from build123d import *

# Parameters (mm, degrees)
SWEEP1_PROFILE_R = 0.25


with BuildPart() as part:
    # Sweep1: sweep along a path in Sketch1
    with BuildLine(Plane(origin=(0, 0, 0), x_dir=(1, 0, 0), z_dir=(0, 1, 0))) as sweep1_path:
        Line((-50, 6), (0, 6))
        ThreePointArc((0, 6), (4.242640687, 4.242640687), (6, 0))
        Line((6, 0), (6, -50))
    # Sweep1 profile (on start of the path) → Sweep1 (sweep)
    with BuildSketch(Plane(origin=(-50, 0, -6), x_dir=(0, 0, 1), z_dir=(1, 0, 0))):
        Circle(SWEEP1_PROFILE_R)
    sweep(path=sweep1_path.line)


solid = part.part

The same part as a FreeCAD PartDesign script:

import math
import FreeCAD as App
import Part
import Sketcher

V = App.Vector
Q = App.Units.Quantity

doc = App.newDocument("Part")
body = doc.addObject("PartDesign::Body", "Body")

# Sketch on YZ plane
sketch1 = doc.addObject("Sketcher::SketchObject", "Sketch")
body.addObject(sketch1)
sketch1.AttachmentSupport = (doc.YZ_Plane, [""])
sketch1.MapMode = "FlatFace"
sketch1.AttachmentOffset = App.Placement(V(0, 0, -50), App.Rotation())
sketch1.addGeometry(Part.Circle(V(0, -6, 0), V(0, 0, 1), 0.25), False)
sketch1.addConstraint(Sketcher.Constraint("PointOnObject", 0, 3, -2))
sketch1.addConstraint(Sketcher.Constraint("Diameter", 0, Q("0.5 mm")))
sketch1.addConstraint(Sketcher.Constraint("DistanceY", 0, 3, -1, 1, Q("6 mm")))

# Sketch on XZ plane
sketch2 = doc.addObject("Sketcher::SketchObject", "Sketch001")
body.addObject(sketch2)
sketch2.AttachmentSupport = (doc.XZ_Plane, [""])
sketch2.MapMode = "FlatFace"
sketch2.addGeometry(Part.LineSegment(V(-50, -6, 0), V(0, -6, 0)), False)
sketch2.addGeometry(Part.ArcOfCircle(Part.Circle(V(0, 0, 0), V(0, 0, 1), 6), math.radians(-90), math.radians(0)), False)
sketch2.addGeometry(Part.LineSegment(V(6, 0, 0), V(6, 50, 0)), False)
sketch2.addConstraint(Sketcher.Constraint("Tangent", 0, 2, 1, 1))
sketch2.addConstraint(Sketcher.Constraint("Tangent", 1, 2, 2, 1))
sketch2.addConstraint(Sketcher.Constraint("Horizontal", 0))
sketch2.addConstraint(Sketcher.Constraint("Vertical", 2))
sketch2.addConstraint(Sketcher.Constraint("Coincident", 1, 3, -1, 1))
sketch2.addConstraint(Sketcher.Constraint("Equal", 0, 2))
sketch2.addConstraint(Sketcher.Constraint("Radius", 1, Q("6 mm")))
sketch2.addConstraint(Sketcher.Constraint("DistanceX", 0, 1, 0, 2, Q("50 mm")))
doc.recompute()

additivepipe = doc.addObject("PartDesign::AdditivePipe", "AdditivePipe")
body.addObject(additivepipe)
additivepipe.Profile = sketch1
additivepipe.Spine = (sketch2, ["Edge1", "Edge2", "Edge3"])

doc.recompute()
